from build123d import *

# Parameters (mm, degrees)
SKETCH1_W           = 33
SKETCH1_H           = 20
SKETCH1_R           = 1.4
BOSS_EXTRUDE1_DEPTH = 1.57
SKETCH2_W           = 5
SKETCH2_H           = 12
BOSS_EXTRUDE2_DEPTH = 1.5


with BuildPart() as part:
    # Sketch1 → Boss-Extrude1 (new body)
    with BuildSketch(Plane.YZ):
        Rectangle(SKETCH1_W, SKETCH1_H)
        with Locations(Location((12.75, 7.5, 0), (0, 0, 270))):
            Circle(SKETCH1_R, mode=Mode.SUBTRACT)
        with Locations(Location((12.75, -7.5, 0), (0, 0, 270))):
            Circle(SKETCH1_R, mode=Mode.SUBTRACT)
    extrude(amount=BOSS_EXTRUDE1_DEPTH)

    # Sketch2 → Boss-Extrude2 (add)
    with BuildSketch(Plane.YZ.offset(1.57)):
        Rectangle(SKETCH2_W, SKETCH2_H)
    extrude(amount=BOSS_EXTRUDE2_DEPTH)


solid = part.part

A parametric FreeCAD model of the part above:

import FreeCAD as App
import Part
import Sketcher

doc = App.newDocument("Part")
body = doc.addObject("PartDesign::Body", "Body")

# Sketch on YZ plane
sketch1 = body.newObject("Sketcher::SketchObject", "Sketch")
sketch1.AttachmentSupport = (doc.getObject("YZ_Plane"), [""])
sketch1.MapMode = "FlatFace"
sketch1.addGeometry([
    Part.LineSegment(App.Vector(-16.5, 10, 0), App.Vector(-16.5, -10, 0)),  # 0
    Part.LineSegment(App.Vector(-16.5, -10, 0), App.Vector(16.5, -10, 0)),  # 1
    Part.LineSegment(App.Vector(16.5, -10, 0), App.Vector(16.5, 10, 0)),  # 2
    Part.LineSegment(App.Vector(16.5, 10, 0), App.Vector(-16.5, 10, 0)),  # 3
    Part.Circle(App.Vector(12.8, -7.5, 0), App.Vector(0, 0, 1), 1.4),  # 4
    Part.Circle(App.Vector(12.8, 7.5, 0), App.Vector(0, 0, 1), 1.4),  # 5
], False)
sketch1.addConstraint([
    Sketcher.Constraint("Coincident", 0, 2, 1, 1),
    Sketcher.Constraint("Coincident", 1, 2, 2, 1),
    Sketcher.Constraint("Coincident", 2, 2, 3, 1),
    Sketcher.Constraint("Coincident", 3, 2, 0, 1),
    Sketcher.Constraint("Vertical", 0),
    Sketcher.Constraint("Horizontal", 1),
    Sketcher.Constraint("Vertical", 2),
    Sketcher.Constraint("Horizontal", 3),
    Sketcher.Constraint("Equal", 4, 5),
    Sketcher.Constraint("Symmetric", 0, 2, 2, 2, -1, 1),
    Sketcher.Constraint("Symmetric", 4, 3, 5, 3, -1),
    Sketcher.Constraint("Diameter", 4, 2.8),
    Sketcher.Constraint("DistanceX", 1, 1, 1, 2, 33.0),
    Sketcher.Constraint("DistanceY", 0, 2, 0, 1, 20.0),
    Sketcher.Constraint("DistanceY", 4, 3, 5, 3, 15.0),
    Sketcher.Constraint("DistanceX", -1, 1, 4, 3, 12.75),
])
pad1 = body.newObject("PartDesign::Pad", "Pad")
pad1.Profile = sketch1
pad1.Length = 1.57

# Sketch on YZ plane
sketch2 = body.newObject("Sketcher::SketchObject", "Sketch001")
sketch2.AttachmentSupport = (doc.getObject("YZ_Plane"), [""])
sketch2.MapMode = "FlatFace"
sketch2.AttachmentOffset = App.Placement(App.Vector(0, 0, 1.57), App.Rotation())
sketch2.addGeometry([
    Part.LineSegment(App.Vector(-2, 6, 0), App.Vector(-2, -6, 0)),
    Part.LineSegment(App.Vector(-2, -6, 0), App.Vector(2, -6, 0)),
    Part.LineSegment(App.Vector(2, -6, 0), App.Vector(2, 6, 0)),
    Part.LineSegment(App.Vector(2, 6, 0), App.Vector(-2, 6, 0)),
], False)
sketch2.addConstraint([
    Sketcher.Constraint("Coincident", 0, 2, 1, 1),
    Sketcher.Constraint("Coincident", 1, 2, 2, 1),
    Sketcher.Constraint("Coincident", 2, 2, 3, 1),
    Sketcher.Constraint("Coincident", 3, 2, 0, 1),
    Sketcher.Constraint("Vertical", 0),
    Sketcher.Constraint("Horizontal", 1),
    Sketcher.Constraint("Vertical", 2),
    Sketcher.Constraint("Horizontal", 3),
    Sketcher.Constraint("Symmetric", 0, 2, 2, 2, -1, 1),
    Sketcher.Constraint("DistanceX", 1, 1, 1, 2, 5.0),
    Sketcher.Constraint("DistanceY", 0, 2, 0, 1, 12.0),
])
pad2 = body.newObject("PartDesign::Pad", "Pad001")
pad2.Profile = sketch2
pad2.Length = 1.5

doc.recompute()
